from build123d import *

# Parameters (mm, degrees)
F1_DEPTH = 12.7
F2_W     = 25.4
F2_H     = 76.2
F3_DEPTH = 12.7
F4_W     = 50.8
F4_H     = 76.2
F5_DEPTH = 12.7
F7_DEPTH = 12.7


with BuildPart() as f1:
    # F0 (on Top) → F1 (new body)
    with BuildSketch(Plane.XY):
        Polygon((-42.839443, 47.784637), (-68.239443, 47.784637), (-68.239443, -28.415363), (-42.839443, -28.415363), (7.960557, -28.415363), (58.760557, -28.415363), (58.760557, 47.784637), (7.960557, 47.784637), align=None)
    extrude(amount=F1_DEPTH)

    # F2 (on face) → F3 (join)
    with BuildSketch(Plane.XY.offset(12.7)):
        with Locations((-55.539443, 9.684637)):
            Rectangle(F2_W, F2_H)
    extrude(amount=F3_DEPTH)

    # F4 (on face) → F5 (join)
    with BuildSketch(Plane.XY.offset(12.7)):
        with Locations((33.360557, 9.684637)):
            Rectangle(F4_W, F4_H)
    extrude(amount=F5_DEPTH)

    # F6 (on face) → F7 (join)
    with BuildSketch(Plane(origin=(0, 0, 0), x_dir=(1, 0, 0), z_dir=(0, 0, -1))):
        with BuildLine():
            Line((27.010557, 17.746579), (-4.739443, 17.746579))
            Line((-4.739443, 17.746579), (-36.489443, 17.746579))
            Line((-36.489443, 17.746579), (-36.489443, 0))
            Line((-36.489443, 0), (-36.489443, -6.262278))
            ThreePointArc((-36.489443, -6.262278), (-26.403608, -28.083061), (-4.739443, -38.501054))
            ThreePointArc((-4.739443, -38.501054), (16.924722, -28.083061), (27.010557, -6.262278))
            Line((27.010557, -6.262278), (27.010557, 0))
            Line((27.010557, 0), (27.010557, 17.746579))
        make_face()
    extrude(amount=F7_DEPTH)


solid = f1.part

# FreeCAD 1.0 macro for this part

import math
import FreeCAD as App
import Part
import Sketcher
from FreeCAD import Vector
Q = App.Units.Quantity


def add_polygon(sketch, points):
    """Adds a closed chain of lines whose ends are joined by coincident constraints."""
    first, n = sketch.GeometryCount, len(points)
    for a, b in zip(points, points[1:] + points[:1]):
        sketch.addGeometry(Part.LineSegment(App.Vector(*a, 0), App.Vector(*b, 0)), False)
    for i in range(n):
        sketch.addConstraint(Sketcher.Constraint("Coincident", first + i, 2, first + (i + 1) % n, 1))

doc = App.newDocument("Part")
body = doc.addObject("PartDesign::Body", "Body")

# Sketch on XY plane
sketch1 = body.newObject("Sketcher::SketchObject", "Sketch")
sketch1.AttachmentSupport = (doc.getObject("XY_Plane"), [""])
sketch1.MapMode = "FlatFace"
add_polygon(sketch1, [(-68, 48), (-68, -28), (59, -28), (59, 48)])  # lines 0-3
sketch1.addConstraint(Sketcher.Constraint("Vertical", 0))
sketch1.addConstraint(Sketcher.Constraint("Horizontal", 1))
sketch1.addConstraint(Sketcher.Constraint("Vertical", 2))
sketch1.addConstraint(Sketcher.Constraint("Horizontal", 3))
sketch1.addConstraint(Sketcher.Constraint("DistanceX", 1, 1, 1, 2, Q("5 in")))
sketch1.addConstraint(Sketcher.Constraint("DistanceY", 0, 2, 0, 1, Q("3 in")))
sketch1.addConstraint(Sketcher.Constraint("DistanceX", 0, 2, -1, 1, 68.239443))
sketch1.addConstraint(Sketcher.Constraint("DistanceY", 0, 2, -1, 1, 28.415363))
pad1 = body.newObject("PartDesign::Pad", "Pad")
pad1.Profile = sketch1
pad1.Length = Q("0.5 in")

# Sketch on XY plane
sketch2 = body.newObject("Sketcher::SketchObject", "Sketch001")
sketch2.AttachmentSupport = (doc.getObject("XY_Plane"), [""])
sketch2.MapMode = "FlatFace"
sketch2.AttachmentOffset = App.Placement(Vector(0, 0, 0.5 * 25.4), App.Rotation())
add_polygon(sketch2, [(-68, 48), (-68, -28), (-43, -28), (-43, 48)])  # lines 0-3
sketch2.addConstraint(Sketcher.Constraint("Vertical", 0))
sketch2.addConstraint(Sketcher.Constraint("Horizontal", 1))
sketch2.addConstraint(Sketcher.Constraint("Vertical", 2))
sketch2.addConstraint(Sketcher.Constraint("Horizontal", 3))
sketch2.addConstraint(Sketcher.Constraint("DistanceX", 1, 1, 1, 2, Q("1 in")))
sketch2.addConstraint(Sketcher.Constraint("DistanceY", 0, 2, 0, 1, Q("3 in")))
sketch2.addConstraint(Sketcher.Constraint("DistanceX", 0, 2, -1, 1, 68.239443))
sketch2.addConstraint(Sketcher.Constraint("DistanceY", 0, 2, -1, 1, 28.415363))
pad2 = body.newObject("PartDesign::Pad", "Pad001")
pad2.Profile = sketch2
pad2.Length = Q("0.5 in")

# Sketch on XY plane
sketch3 = body.newObject("Sketcher::SketchObject", "Sketch002")
sketch3.AttachmentSupport = (doc.getObject("XY_Plane"), [""])
sketch3.MapMode = "FlatFace"
sketch3.AttachmentOffset = App.Placement(Vector(0, 0, 0.5 * 25.4), App.Rotation())
add_polygon(sketch3, [(8, 48), (8, -28), (59, -28), (59, 48)])  # lines 0-3
sketch3.addConstraint(Sketcher.Constraint("Vertical", 0))
sketch3.addConstraint(Sketcher.Constraint("Horizontal", 1))
sketch3.addConstraint(Sketcher.Constraint("Vertical", 2))
sketch3.addConstraint(Sketcher.Constraint("Horizontal", 3))
sketch3.addConstraint(Sketcher.Constraint("DistanceX", 1, 1, 1, 2, Q("2 in")))
sketch3.addConstraint(Sketcher.Constraint("DistanceY", 0, 2, 0, 1, Q("3 in")))
sketch3.addConstraint(Sketcher.Constraint("DistanceX", -1, 1, 0, 2, 7.960557))
sketch3.addConstraint(Sketcher.Constraint("DistanceY", 0, 2, -1, 1, 28.415363))
pad3 = body.newObject("PartDesign::Pad", "Pad002")
pad3.Profile = sketch3
pad3.Length = Q("0.5 in")

# Sketch on XY plane
sketch4 = body.newObject("Sketcher::SketchObject", "Sketch003")
sketch4.AttachmentSupport = (doc.getObject("XY_Plane"), [""])
sketch4.MapMode = "FlatFace"
sketch4.addGeometry(Part.LineSegment(Vector(27, -18, 0), Vector(-36, -18, 0)), False)
sketch4.addGeometry(Part.LineSegment(Vector(-36, -18, 0), Vector(-36, 6, 0)), False)
sketch4.addGeometry(Part.ArcOfCircle(Part.Circle(Vector(-1, 3, 0), Vector(0, 0, 1), 36), math.radians(96), math.radians(175)), False)
sketch4.addGeometry(Part.ArcOfCircle(Part.Circle(Vector(-8, 3, 0), Vector(0, 0, 1), 36), math.radians(5), math.radians(84)), False)
sketch4.addGeometry(Part.LineSegment(Vector(27, 6, 0), Vector(27, -18, 0)), False)
sketch4.addConstraint(Sketcher.Constraint("Coincident", 0, 2, 1, 1))
sketch4.addConstraint(Sketcher.Constraint("Coincident", 1, 2, 2, 2))
sketch4.addConstraint(Sketcher.Constraint("Coincident", 2, 1, 3, 2))
sketch4.addConstraint(Sketcher.Constraint("Coincident", 3, 1, 4, 1))
sketch4.addConstraint(Sketcher.Constraint("Coincident", 4, 2, 0, 1))
sketch4.addConstraint(Sketcher.Constraint("Horizontal", 0))
sketch4.addConstraint(Sketcher.Constraint("Vertical", 1))
sketch4.addConstraint(Sketcher.Constraint("Vertical", 4))
sketch4.addConstraint(Sketcher.Constraint("Equal", 2, 3))
sketch4.addConstraint(Sketcher.Constraint("Horizontal", 2, 3, 3, 3))
sketch4.addConstraint(Sketcher.Constraint("Horizontal", 1, 2, 3, 1))
sketch4.addConstraint(Sketcher.Constraint("Radius", 2, Q("1.4 in")))
sketch4.addConstraint(Sketcher.Constraint("DistanceX", 0, 2, 0, 1, Q("2.5 in")))
sketch4.addConstraint(Sketcher.Constraint("DistanceY", 1, 1, 1, 2, 24.008857))
sketch4.addConstraint(Sketcher.Constraint("DistanceY", -1, 1, 2, 3, 3.131138))
sketch4.addConstraint(Sketcher.Constraint("DistanceY", 0, 2, -1, 1, 17.746579))
sketch4.addConstraint(Sketcher.Constraint("DistanceX", 2, 3, -1, 1, 1.067563))
pad4 = body.newObject("PartDesign::Pad", "Pad003")
pad4.Profile = sketch4
pad4.Length = Q("0.5 in")
pad4.Reversed = True

doc.recompute()
